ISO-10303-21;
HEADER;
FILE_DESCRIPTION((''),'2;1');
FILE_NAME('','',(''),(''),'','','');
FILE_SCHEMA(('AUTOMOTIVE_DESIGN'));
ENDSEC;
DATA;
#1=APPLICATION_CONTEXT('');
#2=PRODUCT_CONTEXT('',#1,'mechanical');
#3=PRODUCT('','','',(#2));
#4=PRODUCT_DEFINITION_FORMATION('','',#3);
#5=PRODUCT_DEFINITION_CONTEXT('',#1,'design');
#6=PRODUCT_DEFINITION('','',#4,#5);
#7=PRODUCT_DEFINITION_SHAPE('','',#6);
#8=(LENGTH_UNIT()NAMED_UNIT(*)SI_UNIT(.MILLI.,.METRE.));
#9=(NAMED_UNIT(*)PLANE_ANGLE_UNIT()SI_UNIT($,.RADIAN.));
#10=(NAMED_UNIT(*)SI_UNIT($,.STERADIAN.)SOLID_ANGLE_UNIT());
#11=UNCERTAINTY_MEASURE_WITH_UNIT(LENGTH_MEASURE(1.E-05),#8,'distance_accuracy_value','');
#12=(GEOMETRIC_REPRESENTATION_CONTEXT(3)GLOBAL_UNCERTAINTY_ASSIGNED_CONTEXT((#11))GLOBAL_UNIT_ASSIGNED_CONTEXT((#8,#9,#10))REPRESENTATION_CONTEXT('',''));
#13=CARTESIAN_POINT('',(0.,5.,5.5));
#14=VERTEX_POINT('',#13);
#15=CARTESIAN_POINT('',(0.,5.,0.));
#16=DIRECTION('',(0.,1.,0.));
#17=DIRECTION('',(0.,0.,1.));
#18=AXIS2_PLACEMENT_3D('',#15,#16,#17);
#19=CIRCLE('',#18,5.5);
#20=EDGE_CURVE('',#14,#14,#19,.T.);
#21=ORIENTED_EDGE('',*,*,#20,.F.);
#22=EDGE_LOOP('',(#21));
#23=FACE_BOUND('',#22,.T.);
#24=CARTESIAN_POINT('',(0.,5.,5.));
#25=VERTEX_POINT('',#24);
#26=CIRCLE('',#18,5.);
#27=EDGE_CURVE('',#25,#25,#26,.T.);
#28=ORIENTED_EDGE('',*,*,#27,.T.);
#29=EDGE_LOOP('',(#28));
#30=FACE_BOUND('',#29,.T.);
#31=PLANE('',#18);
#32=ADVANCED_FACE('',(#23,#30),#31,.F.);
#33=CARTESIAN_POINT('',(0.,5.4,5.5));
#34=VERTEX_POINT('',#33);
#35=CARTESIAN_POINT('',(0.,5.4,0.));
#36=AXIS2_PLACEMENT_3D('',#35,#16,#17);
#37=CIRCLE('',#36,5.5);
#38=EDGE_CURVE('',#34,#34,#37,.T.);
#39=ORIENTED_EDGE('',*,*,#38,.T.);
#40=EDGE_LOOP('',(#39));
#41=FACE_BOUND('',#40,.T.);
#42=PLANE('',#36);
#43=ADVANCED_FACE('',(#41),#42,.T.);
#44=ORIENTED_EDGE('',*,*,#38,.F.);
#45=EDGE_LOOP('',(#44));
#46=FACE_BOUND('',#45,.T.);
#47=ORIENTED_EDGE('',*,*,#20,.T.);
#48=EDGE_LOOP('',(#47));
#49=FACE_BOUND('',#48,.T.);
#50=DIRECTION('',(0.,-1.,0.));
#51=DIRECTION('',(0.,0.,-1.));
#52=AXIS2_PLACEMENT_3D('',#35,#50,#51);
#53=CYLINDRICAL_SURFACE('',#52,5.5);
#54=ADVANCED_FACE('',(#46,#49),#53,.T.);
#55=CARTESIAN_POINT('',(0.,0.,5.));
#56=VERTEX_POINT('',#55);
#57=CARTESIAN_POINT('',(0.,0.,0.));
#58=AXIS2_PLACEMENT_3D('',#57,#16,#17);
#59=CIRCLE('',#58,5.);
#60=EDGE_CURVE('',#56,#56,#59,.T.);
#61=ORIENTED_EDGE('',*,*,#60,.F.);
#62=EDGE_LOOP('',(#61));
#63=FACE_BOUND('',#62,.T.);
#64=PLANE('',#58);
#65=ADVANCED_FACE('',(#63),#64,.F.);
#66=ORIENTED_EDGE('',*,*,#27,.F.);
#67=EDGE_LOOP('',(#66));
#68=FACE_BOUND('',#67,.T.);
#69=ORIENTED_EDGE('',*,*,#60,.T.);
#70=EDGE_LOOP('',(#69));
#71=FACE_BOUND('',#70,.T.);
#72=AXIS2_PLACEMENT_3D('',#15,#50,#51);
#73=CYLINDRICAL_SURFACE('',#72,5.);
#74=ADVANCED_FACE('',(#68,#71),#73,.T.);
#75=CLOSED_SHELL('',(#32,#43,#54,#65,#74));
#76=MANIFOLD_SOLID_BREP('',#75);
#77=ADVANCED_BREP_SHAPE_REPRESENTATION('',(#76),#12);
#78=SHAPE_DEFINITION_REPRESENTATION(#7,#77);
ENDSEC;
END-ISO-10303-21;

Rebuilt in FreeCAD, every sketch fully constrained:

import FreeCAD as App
import Part
import Sketcher
from FreeCAD import Vector

doc = App.newDocument("Part")
body = doc.addObject("PartDesign::Body", "Body")

# Sketch on XZ plane
sketch1 = body.newObject("Sketcher::SketchObject", "Sketch")
sketch1.AttachmentSupport = (doc.getObject("XZ_Plane"), [""])
sketch1.MapMode = "FlatFace"
sketch1.addGeometry(Part.Circle(Vector(0, 0, 0), Vector(0, 0, 1), 5), False)
sketch1.addConstraint(Sketcher.Constraint("Coincident", 0, 3, -1, 1))
sketch1.addConstraint(Sketcher.Constraint("Diameter", 0, 10.0))
pad1 = body.newObject("PartDesign::Pad", "Pad")
pad1.Profile = sketch1
pad1.Length = 5
pad1.Reversed = True

# Sketch on XZ plane
sketch2 = body.newObject("Sketcher::SketchObject", "Sketch001")
sketch2.AttachmentSupport = (doc.getObject("XZ_Plane"), [""])
sketch2.MapMode = "FlatFace"
sketch2.AttachmentOffset = App.Placement(Vector(0, 0, -5), App.Rotation())
sketch2.addGeometry(Part.Circle(Vector(0, 0, 0), Vector(0, 0, 1), 6), False)
sketch2.addConstraint(Sketcher.Constraint("Coincident", 0, 3, -1, 1))
sketch2.addConstraint(Sketcher.Constraint("Diameter", 0, 11.0))
pad2 = body.newObject("PartDesign::Pad", "Pad001")
pad2.Profile = sketch2
pad2.Length = 0.4
pad2.Reversed = True

doc.recompute()
